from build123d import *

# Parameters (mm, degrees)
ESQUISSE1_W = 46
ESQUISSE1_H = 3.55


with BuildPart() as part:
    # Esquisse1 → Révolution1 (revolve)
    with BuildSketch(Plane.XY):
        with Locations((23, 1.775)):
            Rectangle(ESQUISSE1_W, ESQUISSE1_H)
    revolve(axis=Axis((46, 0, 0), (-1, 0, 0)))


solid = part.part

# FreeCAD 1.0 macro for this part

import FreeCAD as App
import Part
import Sketcher
from FreeCAD import Vector
Q = App.Units.Quantity


def add_polygon(sketch, points):
    """Adds a closed chain of lines whose ends are joined by coincident constraints."""
    first, n = sketch.GeometryCount, len(points)
    for a, b in zip(points, points[1:] + points[:1]):
        sketch.addGeometry(Part.LineSegment(App.Vector(*a, 0), App.Vector(*b, 0)), False)
    for i in range(n):
        sketch.addConstraint(Sketcher.Constraint("Coincident", first + i, 2, first + (i + 1) % n, 1))

doc = App.newDocument("Part")
body = doc.addObject("PartDesign::Body", "Body")

# Sketch on XY plane
sketch1 = doc.addObject("Sketcher::SketchObject", "Sketch")
body.addObject(sketch1)
sketch1.AttachmentSupport = (doc.XY_Plane, [""])
sketch1.MapMode = "FlatFace"
add_polygon(sketch1, [(0, 3.55), (0, 0), (46, 0), (46, 3.55)])  # lines 0-3
sketch1.addConstraint([
    Sketcher.Constraint("Vertical", 0),
    Sketcher.Constraint("Horizontal", 1),
    Sketcher.Constraint("Vertical", 2),
    Sketcher.Constraint("Horizontal", 3),
    Sketcher.Constraint("Coincident", 0, 2, -1, 1),
    Sketcher.Constraint("DistanceX", 1, 1, 1, 2, Q("46 mm")),
    Sketcher.Constraint("DistanceY", 0, 2, 0, 1, Q("3.55 mm")),
])
revolution = doc.addObject("PartDesign::Revolution", "Revolution")
body.addObject(revolution)
revolution.Profile = sketch1
revolution.ReferenceAxis = (sketch1, ["H_Axis"])
revolution.Angle = 360

doc.recompute()
